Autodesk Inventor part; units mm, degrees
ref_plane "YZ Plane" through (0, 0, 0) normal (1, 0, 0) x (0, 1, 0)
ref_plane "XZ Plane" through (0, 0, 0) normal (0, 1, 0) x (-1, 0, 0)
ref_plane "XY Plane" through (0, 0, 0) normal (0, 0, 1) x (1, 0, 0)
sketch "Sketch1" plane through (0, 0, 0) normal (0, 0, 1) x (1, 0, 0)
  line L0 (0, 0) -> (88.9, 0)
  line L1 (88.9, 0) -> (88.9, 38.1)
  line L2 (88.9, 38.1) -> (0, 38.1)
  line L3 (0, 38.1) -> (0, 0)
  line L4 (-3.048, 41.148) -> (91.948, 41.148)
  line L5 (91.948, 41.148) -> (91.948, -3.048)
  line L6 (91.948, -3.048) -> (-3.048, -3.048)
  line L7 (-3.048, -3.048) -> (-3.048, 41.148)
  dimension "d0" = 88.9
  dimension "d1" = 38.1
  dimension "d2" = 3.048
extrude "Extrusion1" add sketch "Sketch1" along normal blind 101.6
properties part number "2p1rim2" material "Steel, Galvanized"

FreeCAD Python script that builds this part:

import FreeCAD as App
import Part
import Sketcher

V = App.Vector
Q = App.Units.Quantity

doc = App.newDocument("Part")
body = doc.addObject("PartDesign::Body", "Body")

sketch1 = body.newObject("Sketcher::SketchObject", "Sketch")
sketch1.AttachmentSupport = (doc.getObject("XY_Plane"), [""])
sketch1.MapMode = "FlatFace"
sketch1.addGeometry([
    Part.LineSegment(V(91.948, 41.148, 0), V(-3.048, 41.148, 0)),
    Part.LineSegment(V(-3.048, 41.148, 0), V(-3.048, -3.048, 0)),
    Part.LineSegment(V(-3.048, -3.048, 0), V(91.948, -3.048, 0)),
    Part.LineSegment(V(91.948, -3.048, 0), V(91.948, 41.148, 0)),
    Part.LineSegment(V(88.9, 0, 0), V(0, 0, 0)),
    Part.LineSegment(V(0, 0, 0), V(0, 38.1, 0)),
    Part.LineSegment(V(0, 38.1, 0), V(88.9, 38.1, 0)),
    Part.LineSegment(V(88.9, 38.1, 0), V(88.9, 0, 0)),
], False)
sketch1.addConstraint([
    Sketcher.Constraint("Coincident", 0, 2, 1, 1),
    Sketcher.Constraint("Coincident", 1, 2, 2, 1),
    Sketcher.Constraint("Coincident", 2, 2, 3, 1),
    Sketcher.Constraint("Coincident", 3, 2, 0, 1),
    Sketcher.Constraint("Coincident", 4, 2, 5, 1),
    Sketcher.Constraint("Coincident", 5, 2, 6, 1),
    Sketcher.Constraint("Coincident", 6, 2, 7, 1),
    Sketcher.Constraint("Coincident", 7, 2, 4, 1),
    Sketcher.Constraint("Horizontal", 0),
    Sketcher.Constraint("Vertical", 1),
    Sketcher.Constraint("Horizontal", 2),
    Sketcher.Constraint("Vertical", 3),
    Sketcher.Constraint("Horizontal", 4),
    Sketcher.Constraint("Vertical", 5),
    Sketcher.Constraint("Horizontal", 6),
    Sketcher.Constraint("Vertical", 7),
    Sketcher.Constraint("Coincident", 4, 2, -1, 1),
    Sketcher.Constraint("DistanceX", 4, 2, 4, 1, Q("3.5 in")),
    Sketcher.Constraint("DistanceY", 5, 1, 5, 2, Q("1.5 in")),
    Sketcher.Constraint("DistanceX", 0, 2, -1, 1, Q("0.12 in")),
    Sketcher.Constraint("DistanceY", 1, 2, -1, 1, Q("0.12 in")),
    Sketcher.Constraint("DistanceY", 5, 2, 0, 2, Q("0.12 in")),
    Sketcher.Constraint("DistanceX", 6, 2, 3, 2, Q("0.12 in")),
])
pad1 = body.newObject("PartDesign::Pad", "Pad")
pad1.Profile = sketch1
pad1.Length = Q("4 in")

doc.recompute()
